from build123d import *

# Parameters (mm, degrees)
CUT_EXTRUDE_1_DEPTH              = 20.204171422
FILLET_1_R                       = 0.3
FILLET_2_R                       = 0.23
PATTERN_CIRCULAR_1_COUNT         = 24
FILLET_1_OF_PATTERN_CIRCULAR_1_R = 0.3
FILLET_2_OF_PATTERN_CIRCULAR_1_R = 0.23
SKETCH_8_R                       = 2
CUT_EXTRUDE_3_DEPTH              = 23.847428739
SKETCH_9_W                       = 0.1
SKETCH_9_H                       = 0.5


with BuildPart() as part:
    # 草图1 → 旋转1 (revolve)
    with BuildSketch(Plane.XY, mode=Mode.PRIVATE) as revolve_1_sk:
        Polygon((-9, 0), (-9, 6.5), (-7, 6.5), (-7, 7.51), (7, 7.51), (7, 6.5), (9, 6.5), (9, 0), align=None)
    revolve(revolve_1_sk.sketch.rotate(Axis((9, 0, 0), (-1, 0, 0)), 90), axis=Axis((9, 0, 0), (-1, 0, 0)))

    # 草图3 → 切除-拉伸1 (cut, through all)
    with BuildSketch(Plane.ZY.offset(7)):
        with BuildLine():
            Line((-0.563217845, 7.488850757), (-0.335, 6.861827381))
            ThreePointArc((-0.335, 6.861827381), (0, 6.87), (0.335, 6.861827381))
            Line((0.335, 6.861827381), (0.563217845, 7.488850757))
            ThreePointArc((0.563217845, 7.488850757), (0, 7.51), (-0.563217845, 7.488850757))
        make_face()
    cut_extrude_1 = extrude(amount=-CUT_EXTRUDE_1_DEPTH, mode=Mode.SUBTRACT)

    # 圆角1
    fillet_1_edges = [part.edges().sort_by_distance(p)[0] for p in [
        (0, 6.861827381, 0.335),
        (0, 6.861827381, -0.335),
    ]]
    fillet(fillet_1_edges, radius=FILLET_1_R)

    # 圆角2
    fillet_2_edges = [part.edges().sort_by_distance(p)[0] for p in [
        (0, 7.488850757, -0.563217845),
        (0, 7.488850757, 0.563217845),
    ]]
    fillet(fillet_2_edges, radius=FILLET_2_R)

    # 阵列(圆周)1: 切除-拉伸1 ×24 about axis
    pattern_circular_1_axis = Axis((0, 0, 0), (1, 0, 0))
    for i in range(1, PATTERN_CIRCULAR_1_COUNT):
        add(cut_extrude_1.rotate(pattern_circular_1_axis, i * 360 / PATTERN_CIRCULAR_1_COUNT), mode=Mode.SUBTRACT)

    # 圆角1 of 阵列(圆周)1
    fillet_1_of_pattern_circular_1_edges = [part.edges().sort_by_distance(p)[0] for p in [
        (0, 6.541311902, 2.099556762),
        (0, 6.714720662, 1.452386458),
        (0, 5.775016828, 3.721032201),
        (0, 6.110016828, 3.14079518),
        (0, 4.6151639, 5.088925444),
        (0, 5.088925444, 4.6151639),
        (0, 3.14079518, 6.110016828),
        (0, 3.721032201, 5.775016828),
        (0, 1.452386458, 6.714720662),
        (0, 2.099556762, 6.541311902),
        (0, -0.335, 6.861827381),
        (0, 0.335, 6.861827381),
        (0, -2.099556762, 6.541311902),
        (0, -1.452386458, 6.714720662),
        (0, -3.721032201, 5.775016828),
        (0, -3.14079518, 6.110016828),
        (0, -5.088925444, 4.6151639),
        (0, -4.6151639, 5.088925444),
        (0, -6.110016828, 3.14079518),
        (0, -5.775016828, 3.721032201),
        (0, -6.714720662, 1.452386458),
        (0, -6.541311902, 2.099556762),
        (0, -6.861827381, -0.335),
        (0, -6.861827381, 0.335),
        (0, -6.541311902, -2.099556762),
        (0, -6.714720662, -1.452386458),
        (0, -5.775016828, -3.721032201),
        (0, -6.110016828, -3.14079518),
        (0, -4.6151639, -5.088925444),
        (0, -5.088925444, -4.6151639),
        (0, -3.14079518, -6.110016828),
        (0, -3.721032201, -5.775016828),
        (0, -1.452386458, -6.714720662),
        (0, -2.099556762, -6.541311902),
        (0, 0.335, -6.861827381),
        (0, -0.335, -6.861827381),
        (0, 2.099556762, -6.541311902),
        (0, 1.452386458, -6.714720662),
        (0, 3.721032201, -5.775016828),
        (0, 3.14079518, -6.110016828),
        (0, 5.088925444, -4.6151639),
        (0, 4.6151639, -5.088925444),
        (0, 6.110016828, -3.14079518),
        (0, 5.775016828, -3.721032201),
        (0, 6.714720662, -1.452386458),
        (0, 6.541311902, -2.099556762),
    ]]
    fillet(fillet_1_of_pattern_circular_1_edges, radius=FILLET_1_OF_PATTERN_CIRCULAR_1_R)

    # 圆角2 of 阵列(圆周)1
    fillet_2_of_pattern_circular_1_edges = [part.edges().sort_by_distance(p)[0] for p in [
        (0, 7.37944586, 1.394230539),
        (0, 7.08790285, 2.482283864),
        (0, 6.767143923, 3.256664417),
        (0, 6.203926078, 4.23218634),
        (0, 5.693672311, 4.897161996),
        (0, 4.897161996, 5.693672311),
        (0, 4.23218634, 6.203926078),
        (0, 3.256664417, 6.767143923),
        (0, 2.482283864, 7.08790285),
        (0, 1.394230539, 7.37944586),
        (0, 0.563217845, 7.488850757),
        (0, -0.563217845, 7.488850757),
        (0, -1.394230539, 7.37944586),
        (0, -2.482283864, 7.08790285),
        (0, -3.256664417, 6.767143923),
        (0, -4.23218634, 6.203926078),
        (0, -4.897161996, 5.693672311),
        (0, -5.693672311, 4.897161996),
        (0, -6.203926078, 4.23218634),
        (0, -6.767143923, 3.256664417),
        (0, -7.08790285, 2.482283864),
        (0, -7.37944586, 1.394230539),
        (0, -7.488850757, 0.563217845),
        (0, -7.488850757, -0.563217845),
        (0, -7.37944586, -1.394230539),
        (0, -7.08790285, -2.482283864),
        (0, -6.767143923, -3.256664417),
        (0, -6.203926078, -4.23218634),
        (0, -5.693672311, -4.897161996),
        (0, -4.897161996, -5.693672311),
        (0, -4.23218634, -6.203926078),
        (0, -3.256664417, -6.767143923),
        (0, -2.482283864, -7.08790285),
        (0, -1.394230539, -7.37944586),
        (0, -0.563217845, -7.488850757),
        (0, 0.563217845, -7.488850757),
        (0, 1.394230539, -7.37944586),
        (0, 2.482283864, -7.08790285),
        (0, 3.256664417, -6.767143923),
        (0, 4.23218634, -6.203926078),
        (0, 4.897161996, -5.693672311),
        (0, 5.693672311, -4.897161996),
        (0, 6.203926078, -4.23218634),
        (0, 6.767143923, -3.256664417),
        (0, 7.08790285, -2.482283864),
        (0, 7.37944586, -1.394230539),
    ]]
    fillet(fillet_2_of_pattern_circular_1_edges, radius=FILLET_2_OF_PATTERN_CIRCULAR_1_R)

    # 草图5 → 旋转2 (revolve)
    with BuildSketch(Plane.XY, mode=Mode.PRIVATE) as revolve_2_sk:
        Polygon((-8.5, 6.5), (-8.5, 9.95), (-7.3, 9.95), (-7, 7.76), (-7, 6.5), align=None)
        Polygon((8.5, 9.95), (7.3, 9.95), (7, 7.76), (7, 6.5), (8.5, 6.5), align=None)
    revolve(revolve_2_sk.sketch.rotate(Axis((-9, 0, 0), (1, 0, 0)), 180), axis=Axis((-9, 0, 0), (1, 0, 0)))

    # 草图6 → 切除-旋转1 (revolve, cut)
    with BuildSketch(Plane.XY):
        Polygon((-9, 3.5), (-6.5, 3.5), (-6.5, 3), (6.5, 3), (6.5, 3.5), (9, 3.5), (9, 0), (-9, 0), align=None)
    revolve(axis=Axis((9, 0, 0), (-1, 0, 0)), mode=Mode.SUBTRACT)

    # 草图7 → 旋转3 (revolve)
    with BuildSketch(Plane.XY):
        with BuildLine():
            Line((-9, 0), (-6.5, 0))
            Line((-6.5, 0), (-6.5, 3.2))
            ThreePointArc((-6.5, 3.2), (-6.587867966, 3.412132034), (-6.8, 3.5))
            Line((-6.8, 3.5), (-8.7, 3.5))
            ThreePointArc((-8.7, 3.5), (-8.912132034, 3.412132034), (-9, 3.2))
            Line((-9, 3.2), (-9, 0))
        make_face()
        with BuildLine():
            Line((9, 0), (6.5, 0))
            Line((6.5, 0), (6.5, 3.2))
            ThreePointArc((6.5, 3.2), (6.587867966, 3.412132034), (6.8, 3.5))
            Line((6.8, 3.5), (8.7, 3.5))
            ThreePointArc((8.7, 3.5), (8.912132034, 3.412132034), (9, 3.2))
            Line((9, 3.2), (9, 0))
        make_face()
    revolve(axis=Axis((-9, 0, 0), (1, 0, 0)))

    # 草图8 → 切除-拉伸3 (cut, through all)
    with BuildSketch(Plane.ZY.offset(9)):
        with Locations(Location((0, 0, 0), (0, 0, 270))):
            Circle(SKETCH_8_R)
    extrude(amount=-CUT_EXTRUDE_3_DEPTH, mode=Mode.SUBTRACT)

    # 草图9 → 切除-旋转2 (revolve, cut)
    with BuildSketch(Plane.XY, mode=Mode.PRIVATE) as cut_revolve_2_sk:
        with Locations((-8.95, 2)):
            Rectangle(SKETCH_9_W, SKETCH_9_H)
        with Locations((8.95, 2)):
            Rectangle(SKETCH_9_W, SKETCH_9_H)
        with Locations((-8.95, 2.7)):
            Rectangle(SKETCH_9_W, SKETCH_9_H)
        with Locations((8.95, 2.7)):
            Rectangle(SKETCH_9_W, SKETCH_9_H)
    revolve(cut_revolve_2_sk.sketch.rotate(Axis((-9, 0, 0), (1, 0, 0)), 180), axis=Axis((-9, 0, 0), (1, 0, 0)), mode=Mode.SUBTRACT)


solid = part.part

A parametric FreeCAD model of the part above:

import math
import FreeCAD as App
import Part
import Sketcher

V = App.Vector
Q = App.Units.Quantity


def edges_at(feature, points):
    """Names of the edges that pass closest to the given points."""
    edges = feature.Shape.Edges
    near = lambda p: min(range(len(edges)), key=lambda i: edges[i].distToShape(Part.Vertex(*p))[0])
    return sorted({f"Edge{near(p) + 1}" for p in points})


def add_polygon(sketch, points):
    """Adds a closed chain of lines whose ends are joined by coincident constraints."""
    first, n = sketch.GeometryCount, len(points)
    for a, b in zip(points, points[1:] + points[:1]):
        sketch.addGeometry(Part.LineSegment(App.Vector(*a, 0), App.Vector(*b, 0)), False)
    for i in range(n):
        sketch.addConstraint(Sketcher.Constraint("Coincident", first + i, 2, first + (i + 1) % n, 1))

doc = App.newDocument("Part")
body = doc.addObject("PartDesign::Body", "Body")

sketch1 = doc.addObject("Sketcher::SketchObject", "Sketch")
body.addObject(sketch1)
sketch1.AttachmentSupport = (doc.XY_Plane, [""])
sketch1.MapMode = "FlatFace"
add_polygon(sketch1, [(-9, 6.5), (-9, 0), (9, 0), (9, 6.5), (7, 6.5), (7, 7.5), (-7, 7.5), (-7, 6.5)])
sketch1.addConstraint([
    Sketcher.Constraint("Vertical", 0),
    Sketcher.Constraint("Horizontal", 1),
    Sketcher.Constraint("Vertical", 2),
    Sketcher.Constraint("Horizontal", 3),
    Sketcher.Constraint("Vertical", 4),
    Sketcher.Constraint("Horizontal", 5),
    Sketcher.Constraint("Vertical", 6),
    Sketcher.Constraint("Horizontal", 7),
    Sketcher.Constraint("Symmetric", 0, 2, 1, 2, -1, 1),
    Sketcher.Constraint("Symmetric", 3, 2, 6, 2, -2),
    Sketcher.Constraint("DistanceX", 1, 1, 1, 2, Q("18 mm")),
    Sketcher.Constraint("DistanceX", 3, 2, 3, 1, Q("2 mm")),
    Sketcher.Constraint("DistanceY", 0, 2, 0, 1, Q("6.5 mm")),
    Sketcher.Constraint("DistanceY", 4, 1, 4, 2, Q("1.01 mm")),
])
revolution = doc.addObject("PartDesign::Revolution", "Revolution")
body.addObject(revolution)
revolution.Profile = sketch1
revolution.ReferenceAxis = (sketch1, ["H_Axis"])
revolution.Angle = 360

sketch2 = doc.addObject("Sketcher::SketchObject", "Sketch001")
body.addObject(sketch2)
sketch2.AttachmentSupport = (doc.YZ_Plane, [""])
sketch2.MapMode = "FlatFace"
sketch2.AttachmentOffset = App.Placement(V(0, 0, -7), App.Rotation())
sketch2.addGeometry([
    Part.LineSegment(V(7.5, -0.6, 0), V(6.9, -0.3, 0)),
    Part.ArcOfCircle(Part.Circle(V(0, 0, 0), V(0, 0, 1), 6.9), math.radians(-2.8), math.radians(2.8)),
    Part.LineSegment(V(6.9, 0.3, 0), V(7.5, 0.6, 0)),
    Part.ArcOfCircle(Part.Circle(V(0, 0, 0), V(0, 0, 1), 7.5), math.radians(-4.3), math.radians(4.3)),
], False)
sketch2.addConstraint([
    Sketcher.Constraint("Coincident", 0, 2, 1, 1),
    Sketcher.Constraint("Coincident", 1, 2, 2, 1),
    Sketcher.Constraint("Coincident", 2, 2, 3, 2),
    Sketcher.Constraint("Coincident", 3, 1, 0, 1),
    Sketcher.Constraint("Coincident", 1, 3, -1, 1),
    Sketcher.Constraint("Coincident", 3, 3, -1, 1),
    Sketcher.Constraint("Vertical", 0, 2, 1, 2),
    Sketcher.Constraint("Vertical", 2, 2, 3, 1),
    Sketcher.Constraint("Angle", 0, Q("160 deg")),
    Sketcher.Constraint("Radius", 1, Q("6.87 mm")),
    Sketcher.Constraint("Radius", 3, Q("7.51 mm")),
    Sketcher.Constraint("DistanceY", 0, 2, 1, 2, Q("0.67 mm")),
])
pocket1 = doc.addObject("PartDesign::Pocket", "Pocket")
body.addObject(pocket1)
pocket1.Profile = sketch2
pocket1.Type = "ThroughAll"
pocket1.Reversed = True
doc.recompute()

fillet = doc.addObject("PartDesign::Fillet", "Fillet")
body.addObject(fillet)
fillet.Base = (pocket1, edges_at(pocket1, [(0, 6.862, 0.335), (0, 6.862, -0.335)]))
fillet.Radius = 0.3
doc.recompute()

fillet2 = doc.addObject("PartDesign::Fillet", "Fillet001")
body.addObject(fillet2)
fillet2.Base = (fillet, edges_at(fillet, [(0, 7.489, -0.563), (0, 7.489, 0.563)]))
fillet2.Radius = 0.23
doc.recompute()

polarpattern = doc.addObject("PartDesign::PolarPattern", "PolarPattern")
body.addObject(polarpattern)
polarpattern.Originals = [pocket1]
polarpattern.Axis = (doc.X_Axis, [""])
polarpattern.Angle = 360
polarpattern.Occurrences = 24
body.Tip = polarpattern
doc.recompute()

fillet3 = doc.addObject("PartDesign::Fillet", "Fillet002")
body.addObject(fillet3)
fillet3.Base = (polarpattern, edges_at(polarpattern, [
    (0, 6.541, 2.1),
    (0, 6.715, 1.452),
    (0, 5.775, 3.721),
    (0, 6.11, 3.141),
    (0, 4.615, 5.089),
    (0, 5.089, 4.615),
    (0, 3.141, 6.11),
    (0, 3.721, 5.775),
    (0, 1.452, 6.715),
    (0, 2.1, 6.541),
    (0, -0.335, 6.862),
    (0, 0.335, 6.862),
    (0, -2.1, 6.541),
    (0, -1.452, 6.715),
    (0, -3.721, 5.775),
    (0, -3.141, 6.11),
    (0, -5.089, 4.615),
    (0, -4.615, 5.089),
    (0, -6.11, 3.141),
    (0, -5.775, 3.721),
    (0, -6.715, 1.452),
    (0, -6.541, 2.1),
    (0, -6.862, -0.335),
    (0, -6.862, 0.335),
    (0, -6.541, -2.1),
    (0, -6.715, -1.452),
    (0, -5.775, -3.721),
    (0, -6.11, -3.141),
    (0, -4.615, -5.089),
    (0, -5.089, -4.615),
    (0, -3.141, -6.11),
    (0, -3.721, -5.775),
    (0, -1.452, -6.715),
    (0, -2.1, -6.541),
    (0, 0.335, -6.862),
    (0, -0.335, -6.862),
    (0, 2.1, -6.541),
    (0, 1.452, -6.715),
    (0, 3.721, -5.775),
    (0, 3.141, -6.11),
    (0, 5.089, -4.615),
    (0, 4.615, -5.089),
    (0, 6.11, -3.141),
    (0, 5.775, -3.721),
    (0, 6.715, -1.452),
    (0, 6.541, -2.1),
]))
fillet3.Radius = 0.3
doc.recompute()

fillet4 = doc.addObject("PartDesign::Fillet", "Fillet003")
body.addObject(fillet4)
fillet4.Base = (fillet3, edges_at(fillet3, [
    (0, 7.379, 1.394),
    (0, 7.088, 2.482),
    (0, 6.767, 3.257),
    (0, 6.204, 4.232),
    (0, 5.694, 4.897),
    (0, 4.897, 5.694),
    (0, 4.232, 6.204),
    (0, 3.257, 6.767),
    (0, 2.482, 7.088),
    (0, 1.394, 7.379),
    (0, 0.563, 7.489),
    (0, -0.563, 7.489),
    (0, -1.394, 7.379),
    (0, -2.482, 7.088),
    (0, -3.257, 6.767),
    (0, -4.232, 6.204),
    (0, -4.897, 5.694),
    (0, -5.694, 4.897),
    (0, -6.204, 4.232),
    (0, -6.767, 3.257),
    (0, -7.088, 2.482),
    (0, -7.379, 1.394),
    (0, -7.489, 0.563),
    (0, -7.489, -0.563),
    (0, -7.379, -1.394),
    (0, -7.088, -2.482),
    (0, -6.767, -3.257),
    (0, -6.204, -4.232),
    (0, -5.694, -4.897),
    (0, -4.897, -5.694),
    (0, -4.232, -6.204),
    (0, -3.257, -6.767),
    (0, -2.482, -7.088),
    (0, -1.394, -7.379),
    (0, -0.563, -7.489),
    (0, 0.563, -7.489),
    (0, 1.394, -7.379),
    (0, 2.482, -7.088),
    (0, 3.257, -6.767),
    (0, 4.232, -6.204),
    (0, 4.897, -5.694),
    (0, 5.694, -4.897),
    (0, 6.204, -4.232),
    (0, 6.767, -3.257),
    (0, 7.088, -2.482),
    (0, 7.379, -1.394),
]))
fillet4.Radius = 0.23

sketch3 = doc.addObject("Sketcher::SketchObject", "Sketch002")
body.addObject(sketch3)
sketch3.AttachmentSupport = (doc.XY_Plane, [""])
sketch3.MapMode = "FlatFace"
add_polygon(sketch3, [(-8.5, 9.9), (-8.5, 6.5), (-7, 6.5), (-7, 7.8), (-7.3, 9.9)])
add_polygon(sketch3, [(8.5, 9.9), (7.3, 9.9), (7, 7.8), (7, 6.5), (8.5, 6.5)])
sketch3.addConstraint([
    Sketcher.Constraint("Vertical", 0),
    Sketcher.Constraint("Horizontal", 1),
    Sketcher.Constraint("Vertical", 2),
    Sketcher.Constraint("Horizontal", 4),
    Sketcher.Constraint("Horizontal", 5),
    Sketcher.Constraint("Vertical", 7),
    Sketcher.Constraint("Horizontal", 8),
    Sketcher.Constraint("Vertical", 9),
    Sketcher.Constraint("Symmetric", 3, 2, 5, 2, -2),
    Sketcher.Constraint("Symmetric", 2, 2, 6, 2, -2),
    Sketcher.Constraint("Symmetric", 0, 2, 8, 2, -2),
    Sketcher.Constraint("DistanceX", 1, 1, 1, 2, Q("1.5 mm")),
    Sketcher.Constraint("DistanceX", 4, 2, 4, 1, Q("1.2 mm")),
    Sketcher.Constraint("DistanceX", 1, 2, -1, 1, Q("7 mm")),
    Sketcher.Constraint("DistanceY", 0, 2, 0, 1, Q("3.45 mm")),
    Sketcher.Constraint("DistanceY", 2, 1, 2, 2, Q("1.26 mm")),
    Sketcher.Constraint("DistanceY", -1, 1, 0, 2, Q("6.5 mm")),
])
revolution2 = doc.addObject("PartDesign::Revolution", "Revolution001")
body.addObject(revolution2)
revolution2.Profile = sketch3
revolution2.ReferenceAxis = (sketch3, ["H_Axis"])
revolution2.Angle = 360

sketch4 = doc.addObject("Sketcher::SketchObject", "Sketch003")
body.addObject(sketch4)
sketch4.AttachmentSupport = (doc.XY_Plane, [""])
sketch4.MapMode = "FlatFace"
add_polygon(sketch4, [(-6.5, 3.5), (-9, 3.5), (-9, 0), (9, 0), (9, 3.5), (6.5, 3.5), (6.5, 3), (-6.5, 3)])
sketch4.addConstraint([
    Sketcher.Constraint("Horizontal", 0),
    Sketcher.Constraint("Vertical", 1),
    Sketcher.Constraint("Horizontal", 2),
    Sketcher.Constraint("Vertical", 3),
    Sketcher.Constraint("Horizontal", 4),
    Sketcher.Constraint("Vertical", 5),
    Sketcher.Constraint("Horizontal", 6),
    Sketcher.Constraint("Vertical", 7),
    Sketcher.Constraint("Symmetric", 1, 2, 2, 2, -1, 1),
    Sketcher.Constraint("Symmetric", 4, 2, 7, 2, -2),
    Sketcher.Constraint("DistanceX", 2, 1, 2, 2, Q("18 mm")),
    Sketcher.Constraint("DistanceX", 6, 2, 6, 1, Q("13 mm")),
    Sketcher.Constraint("DistanceY", 1, 2, 1, 1, Q("3.5 mm")),
    Sketcher.Constraint("DistanceY", 5, 2, 5, 1, Q("0.5 mm")),
])
groove = doc.addObject("PartDesign::Groove", "Groove")
body.addObject(groove)
groove.Profile = sketch4
groove.ReferenceAxis = (sketch4, ["H_Axis"])
groove.Angle = 360

sketch5 = doc.addObject("Sketcher::SketchObject", "Sketch004")
body.addObject(sketch5)
sketch5.AttachmentSupport = (doc.XY_Plane, [""])
sketch5.MapMode = "FlatFace"
sketch5.addGeometry([
    Part.LineSegment(V(-9, 0, 0), V(-6.5, 0, 0)),
    Part.LineSegment(V(-6.5, 0, 0), V(-6.5, 3.2, 0)),
    Part.ArcOfCircle(Part.Circle(V(-6.8, 3.2, 0), V(0, 0, 1), 0.3), math.radians(0), math.radians(90)),
    Part.LineSegment(V(-6.8, 3.5, 0), V(-8.7, 3.5, 0)),
    Part.ArcOfCircle(Part.Circle(V(-8.7, 3.2, 0), V(0, 0, 1), 0.3), math.radians(90), math.radians(180)),
    Part.LineSegment(V(-9, 3.2, 0), V(-9, 0, 0)),
    Part.LineSegment(V(6.5, 0, 0), V(9, 0, 0)),
    Part.LineSegment(V(9, 0, 0), V(9, 3.2, 0)),
    Part.ArcOfCircle(Part.Circle(V(8.7, 3.2, 0), V(0, 0, 1), 0.3), math.radians(0), math.radians(90)),
    Part.LineSegment(V(8.7, 3.5, 0), V(6.8, 3.5, 0)),
    Part.ArcOfCircle(Part.Circle(V(6.8, 3.2, 0), V(0, 0, 1), 0.3), math.radians(90), math.radians(180)),
    Part.LineSegment(V(6.5, 3.2, 0), V(6.5, 0, 0)),
], False)
sketch5.addConstraint([
    Sketcher.Constraint("Coincident", 0, 2, 1, 1),
    Sketcher.Constraint("Tangent", 1, 2, 2, 1),
    Sketcher.Constraint("Tangent", 2, 2, 3, 1),
    Sketcher.Constraint("Tangent", 3, 2, 4, 1),
    Sketcher.Constraint("Tangent", 4, 2, 5, 1),
    Sketcher.Constraint("Coincident", 5, 2, 0, 1),
    Sketcher.Constraint("Coincident", 6, 2, 7, 1),
    Sketcher.Constraint("Tangent", 7, 2, 8, 1),
    Sketcher.Constraint("Tangent", 8, 2, 9, 1),
    Sketcher.Constraint("Tangent", 9, 2, 10, 1),
    Sketcher.Constraint("Tangent", 10, 2, 11, 1),
    Sketcher.Constraint("Coincident", 11, 2, 6, 1),
    Sketcher.Constraint("Horizontal", 0),
    Sketcher.Constraint("Vertical", 1),
    Sketcher.Constraint("Horizontal", 3),
    Sketcher.Constraint("Vertical", 5),
    Sketcher.Constraint("Horizontal", 6),
    Sketcher.Constraint("Vertical", 7),
    Sketcher.Constraint("Horizontal", 9),
    Sketcher.Constraint("Vertical", 11),
    Sketcher.Constraint("Equal", 2, 4),
    Sketcher.Constraint("Equal", 4, 8),
    Sketcher.Constraint("Equal", 8, 10),
    Sketcher.Constraint("Symmetric", 5, 2, 6, 2, -1, 1),
    Sketcher.Constraint("Symmetric", 2, 3, 10, 3, -2),
    Sketcher.Constraint("PointOnObject", 0, 2, -1),
    Sketcher.Constraint("Radius", 2, Q("0.3 mm")),
    Sketcher.Constraint("DistanceX", 0, 1, 0, 2, Q("2.5 mm")),
    Sketcher.Constraint("DistanceY", 1, 1, 1, 2, Q("3.2 mm")),
    Sketcher.Constraint("DistanceX", 4, 2, -1, 1, Q("9 mm")),
])
revolution3 = doc.addObject("PartDesign::Revolution", "Revolution002")
body.addObject(revolution3)
revolution3.Profile = sketch5
revolution3.ReferenceAxis = (sketch5, ["H_Axis"])
revolution3.Angle = 360

sketch6 = doc.addObject("Sketcher::SketchObject", "Sketch005")
body.addObject(sketch6)
sketch6.AttachmentSupport = (doc.YZ_Plane, [""])
sketch6.MapMode = "FlatFace"
sketch6.AttachmentOffset = App.Placement(V(0, 0, -9), App.Rotation())
sketch6.addGeometry(Part.Circle(V(0, 0, 0), V(0, 0, 1), 2), False)
sketch6.addConstraint([
    Sketcher.Constraint("Coincident", 0, 3, -1, 1),
    Sketcher.Constraint("Diameter", 0, Q("4 mm")),
])
pocket2 = doc.addObject("PartDesign::Pocket", "Pocket001")
body.addObject(pocket2)
pocket2.Profile = sketch6
pocket2.Type = "ThroughAll"
pocket2.Reversed = True

sketch7 = doc.addObject("Sketcher::SketchObject", "Sketch006")
body.addObject(sketch7)
sketch7.AttachmentSupport = (doc.XY_Plane, [""])
sketch7.MapMode = "FlatFace"
add_polygon(sketch7, [(-9, 2.25), (-9, 1.75), (-8.9, 1.75), (-8.9, 2.25)])
add_polygon(sketch7, [(8.9, 2.25), (8.9, 1.75), (9, 1.75), (9, 2.25)])
add_polygon(sketch7, [(-9, 2.95), (-9, 2.45), (-8.9, 2.45), (-8.9, 2.95)])
add_polygon(sketch7, [(8.9, 2.95), (8.9, 2.45), (9, 2.45), (9, 2.95)])
sketch7.addConstraint([
    Sketcher.Constraint("Vertical", 0),
    Sketcher.Constraint("Horizontal", 1),
    Sketcher.Constraint("Vertical", 2),
    Sketcher.Constraint("Horizontal", 3),
    Sketcher.Constraint("Vertical", 4),
    Sketcher.Constraint("Horizontal", 5),
    Sketcher.Constraint("Vertical", 6),
    Sketcher.Constraint("Horizontal", 7),
    Sketcher.Constraint("Vertical", 8),
    Sketcher.Constraint("Horizontal", 9),
    Sketcher.Constraint("Vertical", 10),
    Sketcher.Constraint("Horizontal", 11),
    Sketcher.Constraint("Vertical", 12),
    Sketcher.Constraint("Horizontal", 13),
    Sketcher.Constraint("Vertical", 14),
    Sketcher.Constraint("Horizontal", 15),
    Sketcher.Constraint("Symmetric", 1, 2, 4, 2, -2),
    Sketcher.Constraint("Symmetric", 3, 2, 6, 2, -2),
    Sketcher.Constraint("Symmetric", 9, 2, 12, 2, -2),
    Sketcher.Constraint("Symmetric", 11, 2, 14, 2, -2),
    Sketcher.Constraint("Vertical", 3, 2, 8, 2),
    Sketcher.Constraint("Vertical", 2, 2, 9, 2),
    Sketcher.Constraint("Equal", 6, 8),
    Sketcher.Constraint("DistanceX", 1, 1, 1, 2, Q("0.1 mm")),
    Sketcher.Constraint("DistanceY", 0, 2, 0, 1, Q("0.5 mm")),
    Sketcher.Constraint("DistanceX", 0, 2, -1, 1, Q("9 mm")),
    Sketcher.Constraint("DistanceY", 3, 2, 8, 2, Q("0.2 mm")),
    Sketcher.Constraint("DistanceY", -1, 1, 0, 2, Q("1.75 mm")),
])
groove2 = doc.addObject("PartDesign::Groove", "Groove001")
body.addObject(groove2)
groove2.Profile = sketch7
groove2.ReferenceAxis = (sketch7, ["H_Axis"])
groove2.Angle = 360

doc.recompute()
